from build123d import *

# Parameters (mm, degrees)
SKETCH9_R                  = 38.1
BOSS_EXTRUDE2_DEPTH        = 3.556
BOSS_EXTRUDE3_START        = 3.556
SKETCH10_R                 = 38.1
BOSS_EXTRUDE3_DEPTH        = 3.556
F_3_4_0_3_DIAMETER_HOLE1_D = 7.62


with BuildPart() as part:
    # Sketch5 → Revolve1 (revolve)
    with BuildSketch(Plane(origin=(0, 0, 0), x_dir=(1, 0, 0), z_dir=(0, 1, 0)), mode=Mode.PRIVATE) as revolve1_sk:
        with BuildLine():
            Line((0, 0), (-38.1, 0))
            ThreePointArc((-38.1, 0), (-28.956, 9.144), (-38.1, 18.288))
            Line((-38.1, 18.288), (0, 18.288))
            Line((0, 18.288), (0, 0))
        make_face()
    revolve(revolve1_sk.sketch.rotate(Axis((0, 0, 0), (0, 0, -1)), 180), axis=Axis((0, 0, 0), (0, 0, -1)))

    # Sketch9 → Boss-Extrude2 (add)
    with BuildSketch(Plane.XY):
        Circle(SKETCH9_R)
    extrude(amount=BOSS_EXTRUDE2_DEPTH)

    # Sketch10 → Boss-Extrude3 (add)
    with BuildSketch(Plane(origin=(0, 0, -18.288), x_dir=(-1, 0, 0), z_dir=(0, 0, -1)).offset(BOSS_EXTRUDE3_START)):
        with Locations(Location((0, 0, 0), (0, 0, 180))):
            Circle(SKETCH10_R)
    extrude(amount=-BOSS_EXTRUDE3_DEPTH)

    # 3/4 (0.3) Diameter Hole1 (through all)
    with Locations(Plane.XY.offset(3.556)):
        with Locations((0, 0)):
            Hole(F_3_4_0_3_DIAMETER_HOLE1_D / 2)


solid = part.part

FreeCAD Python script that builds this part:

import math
import FreeCAD as App
import Part
import Sketcher
Q = App.Units.Quantity

doc = App.newDocument("Part")
body = doc.addObject("PartDesign::Body", "Body")

# Sketch on XZ plane
sketch1 = body.newObject("Sketcher::SketchObject", "Sketch")
sketch1.AttachmentSupport = (doc.getObject("XZ_Plane"), [""])
sketch1.MapMode = "FlatFace"
sketch1.addGeometry([
    Part.LineSegment(App.Vector(-38, 0, 0), App.Vector(0, 0, 0)),
    Part.LineSegment(App.Vector(0, 0, 0), App.Vector(0, -18, 0)),
    Part.LineSegment(App.Vector(0, -18, 0), App.Vector(-38, -18, 0)),
    Part.ArcOfCircle(Part.Circle(App.Vector(-38, -9, 0), App.Vector(0, 0, 1), 9), math.radians(-90), math.radians(90)),
], False)
sketch1.addConstraint([
    Sketcher.Constraint("Coincident", 0, 2, 1, 1),
    Sketcher.Constraint("Coincident", 1, 2, 2, 1),
    Sketcher.Constraint("Tangent", 2, 2, 3, 1),
    Sketcher.Constraint("Tangent", 3, 2, 0, 1),
    Sketcher.Constraint("Horizontal", 0),
    Sketcher.Constraint("Vertical", 1),
    Sketcher.Constraint("Horizontal", 2),
    Sketcher.Constraint("Coincident", 0, 2, -1, 1),
    Sketcher.Constraint("Radius", 3, Q("0.36 in")),
    Sketcher.Constraint("DistanceX", 0, 1, 0, 2, Q("1.5 in")),
])
revolution = body.newObject("PartDesign::Revolution", "Revolution")
revolution.Profile = sketch1
revolution.ReferenceAxis = (sketch1, ["V_Axis"])
revolution.Angle = 360

# Sketch on XY plane
sketch2 = body.newObject("Sketcher::SketchObject", "Sketch001")
sketch2.AttachmentSupport = (doc.getObject("XY_Plane"), [""])
sketch2.MapMode = "FlatFace"
sketch2.addGeometry(Part.Circle(App.Vector(0, 0, 0), App.Vector(0, 0, 1), 38), False)
sketch2.addConstraint([
    Sketcher.Constraint("Coincident", 0, 3, -1, 1),
    Sketcher.Constraint("Diameter", 0, Q("3 in")),
])
pad1 = body.newObject("PartDesign::Pad", "Pad")
pad1.Profile = sketch2
pad1.Length = Q("0.14 in")

# Sketch on XY plane
sketch3 = body.newObject("Sketcher::SketchObject", "Sketch002")
sketch3.AttachmentSupport = (doc.getObject("XY_Plane"), [""])
sketch3.MapMode = "FlatFace"
sketch3.AttachmentOffset = App.Placement(App.Vector(0, 0, -0.86 * 25.4), App.Rotation())
sketch3.addGeometry(Part.Circle(App.Vector(0, 0, 0), App.Vector(0, 0, 1), 38), False)
sketch3.addConstraint([
    Sketcher.Constraint("Coincident", 0, 3, -1, 1),
    Sketcher.Constraint("Diameter", 0, Q("3 in")),
])
pad2 = body.newObject("PartDesign::Pad", "Pad001")
pad2.Profile = sketch3
pad2.Length = Q("0.14 in")

# Sketch on XY plane
sketch4 = body.newObject("Sketcher::SketchObject", "Sketch003")
sketch4.AttachmentSupport = (doc.getObject("XY_Plane"), [""])
sketch4.MapMode = "FlatFace"
sketch4.AttachmentOffset = App.Placement(App.Vector(0, 0, 0.14 * 25.4), App.Rotation())
sketch4.addGeometry(Part.Circle(App.Vector(0, 0, 0), App.Vector(0, 0, 1), 3.8), False)
sketch4.addConstraint([
    Sketcher.Constraint("Coincident", 0, 3, -1, 1),
    Sketcher.Constraint("Diameter", 0, Q("0.3 in")),
])
doc.recompute()
hole = body.newObject("PartDesign::Hole", "Hole")
hole.Profile = sketch4
hole.ThreadType = "None"
hole.Diameter = Q("0.3 in")
hole.DepthType = "ThroughAll"

doc.recompute()
